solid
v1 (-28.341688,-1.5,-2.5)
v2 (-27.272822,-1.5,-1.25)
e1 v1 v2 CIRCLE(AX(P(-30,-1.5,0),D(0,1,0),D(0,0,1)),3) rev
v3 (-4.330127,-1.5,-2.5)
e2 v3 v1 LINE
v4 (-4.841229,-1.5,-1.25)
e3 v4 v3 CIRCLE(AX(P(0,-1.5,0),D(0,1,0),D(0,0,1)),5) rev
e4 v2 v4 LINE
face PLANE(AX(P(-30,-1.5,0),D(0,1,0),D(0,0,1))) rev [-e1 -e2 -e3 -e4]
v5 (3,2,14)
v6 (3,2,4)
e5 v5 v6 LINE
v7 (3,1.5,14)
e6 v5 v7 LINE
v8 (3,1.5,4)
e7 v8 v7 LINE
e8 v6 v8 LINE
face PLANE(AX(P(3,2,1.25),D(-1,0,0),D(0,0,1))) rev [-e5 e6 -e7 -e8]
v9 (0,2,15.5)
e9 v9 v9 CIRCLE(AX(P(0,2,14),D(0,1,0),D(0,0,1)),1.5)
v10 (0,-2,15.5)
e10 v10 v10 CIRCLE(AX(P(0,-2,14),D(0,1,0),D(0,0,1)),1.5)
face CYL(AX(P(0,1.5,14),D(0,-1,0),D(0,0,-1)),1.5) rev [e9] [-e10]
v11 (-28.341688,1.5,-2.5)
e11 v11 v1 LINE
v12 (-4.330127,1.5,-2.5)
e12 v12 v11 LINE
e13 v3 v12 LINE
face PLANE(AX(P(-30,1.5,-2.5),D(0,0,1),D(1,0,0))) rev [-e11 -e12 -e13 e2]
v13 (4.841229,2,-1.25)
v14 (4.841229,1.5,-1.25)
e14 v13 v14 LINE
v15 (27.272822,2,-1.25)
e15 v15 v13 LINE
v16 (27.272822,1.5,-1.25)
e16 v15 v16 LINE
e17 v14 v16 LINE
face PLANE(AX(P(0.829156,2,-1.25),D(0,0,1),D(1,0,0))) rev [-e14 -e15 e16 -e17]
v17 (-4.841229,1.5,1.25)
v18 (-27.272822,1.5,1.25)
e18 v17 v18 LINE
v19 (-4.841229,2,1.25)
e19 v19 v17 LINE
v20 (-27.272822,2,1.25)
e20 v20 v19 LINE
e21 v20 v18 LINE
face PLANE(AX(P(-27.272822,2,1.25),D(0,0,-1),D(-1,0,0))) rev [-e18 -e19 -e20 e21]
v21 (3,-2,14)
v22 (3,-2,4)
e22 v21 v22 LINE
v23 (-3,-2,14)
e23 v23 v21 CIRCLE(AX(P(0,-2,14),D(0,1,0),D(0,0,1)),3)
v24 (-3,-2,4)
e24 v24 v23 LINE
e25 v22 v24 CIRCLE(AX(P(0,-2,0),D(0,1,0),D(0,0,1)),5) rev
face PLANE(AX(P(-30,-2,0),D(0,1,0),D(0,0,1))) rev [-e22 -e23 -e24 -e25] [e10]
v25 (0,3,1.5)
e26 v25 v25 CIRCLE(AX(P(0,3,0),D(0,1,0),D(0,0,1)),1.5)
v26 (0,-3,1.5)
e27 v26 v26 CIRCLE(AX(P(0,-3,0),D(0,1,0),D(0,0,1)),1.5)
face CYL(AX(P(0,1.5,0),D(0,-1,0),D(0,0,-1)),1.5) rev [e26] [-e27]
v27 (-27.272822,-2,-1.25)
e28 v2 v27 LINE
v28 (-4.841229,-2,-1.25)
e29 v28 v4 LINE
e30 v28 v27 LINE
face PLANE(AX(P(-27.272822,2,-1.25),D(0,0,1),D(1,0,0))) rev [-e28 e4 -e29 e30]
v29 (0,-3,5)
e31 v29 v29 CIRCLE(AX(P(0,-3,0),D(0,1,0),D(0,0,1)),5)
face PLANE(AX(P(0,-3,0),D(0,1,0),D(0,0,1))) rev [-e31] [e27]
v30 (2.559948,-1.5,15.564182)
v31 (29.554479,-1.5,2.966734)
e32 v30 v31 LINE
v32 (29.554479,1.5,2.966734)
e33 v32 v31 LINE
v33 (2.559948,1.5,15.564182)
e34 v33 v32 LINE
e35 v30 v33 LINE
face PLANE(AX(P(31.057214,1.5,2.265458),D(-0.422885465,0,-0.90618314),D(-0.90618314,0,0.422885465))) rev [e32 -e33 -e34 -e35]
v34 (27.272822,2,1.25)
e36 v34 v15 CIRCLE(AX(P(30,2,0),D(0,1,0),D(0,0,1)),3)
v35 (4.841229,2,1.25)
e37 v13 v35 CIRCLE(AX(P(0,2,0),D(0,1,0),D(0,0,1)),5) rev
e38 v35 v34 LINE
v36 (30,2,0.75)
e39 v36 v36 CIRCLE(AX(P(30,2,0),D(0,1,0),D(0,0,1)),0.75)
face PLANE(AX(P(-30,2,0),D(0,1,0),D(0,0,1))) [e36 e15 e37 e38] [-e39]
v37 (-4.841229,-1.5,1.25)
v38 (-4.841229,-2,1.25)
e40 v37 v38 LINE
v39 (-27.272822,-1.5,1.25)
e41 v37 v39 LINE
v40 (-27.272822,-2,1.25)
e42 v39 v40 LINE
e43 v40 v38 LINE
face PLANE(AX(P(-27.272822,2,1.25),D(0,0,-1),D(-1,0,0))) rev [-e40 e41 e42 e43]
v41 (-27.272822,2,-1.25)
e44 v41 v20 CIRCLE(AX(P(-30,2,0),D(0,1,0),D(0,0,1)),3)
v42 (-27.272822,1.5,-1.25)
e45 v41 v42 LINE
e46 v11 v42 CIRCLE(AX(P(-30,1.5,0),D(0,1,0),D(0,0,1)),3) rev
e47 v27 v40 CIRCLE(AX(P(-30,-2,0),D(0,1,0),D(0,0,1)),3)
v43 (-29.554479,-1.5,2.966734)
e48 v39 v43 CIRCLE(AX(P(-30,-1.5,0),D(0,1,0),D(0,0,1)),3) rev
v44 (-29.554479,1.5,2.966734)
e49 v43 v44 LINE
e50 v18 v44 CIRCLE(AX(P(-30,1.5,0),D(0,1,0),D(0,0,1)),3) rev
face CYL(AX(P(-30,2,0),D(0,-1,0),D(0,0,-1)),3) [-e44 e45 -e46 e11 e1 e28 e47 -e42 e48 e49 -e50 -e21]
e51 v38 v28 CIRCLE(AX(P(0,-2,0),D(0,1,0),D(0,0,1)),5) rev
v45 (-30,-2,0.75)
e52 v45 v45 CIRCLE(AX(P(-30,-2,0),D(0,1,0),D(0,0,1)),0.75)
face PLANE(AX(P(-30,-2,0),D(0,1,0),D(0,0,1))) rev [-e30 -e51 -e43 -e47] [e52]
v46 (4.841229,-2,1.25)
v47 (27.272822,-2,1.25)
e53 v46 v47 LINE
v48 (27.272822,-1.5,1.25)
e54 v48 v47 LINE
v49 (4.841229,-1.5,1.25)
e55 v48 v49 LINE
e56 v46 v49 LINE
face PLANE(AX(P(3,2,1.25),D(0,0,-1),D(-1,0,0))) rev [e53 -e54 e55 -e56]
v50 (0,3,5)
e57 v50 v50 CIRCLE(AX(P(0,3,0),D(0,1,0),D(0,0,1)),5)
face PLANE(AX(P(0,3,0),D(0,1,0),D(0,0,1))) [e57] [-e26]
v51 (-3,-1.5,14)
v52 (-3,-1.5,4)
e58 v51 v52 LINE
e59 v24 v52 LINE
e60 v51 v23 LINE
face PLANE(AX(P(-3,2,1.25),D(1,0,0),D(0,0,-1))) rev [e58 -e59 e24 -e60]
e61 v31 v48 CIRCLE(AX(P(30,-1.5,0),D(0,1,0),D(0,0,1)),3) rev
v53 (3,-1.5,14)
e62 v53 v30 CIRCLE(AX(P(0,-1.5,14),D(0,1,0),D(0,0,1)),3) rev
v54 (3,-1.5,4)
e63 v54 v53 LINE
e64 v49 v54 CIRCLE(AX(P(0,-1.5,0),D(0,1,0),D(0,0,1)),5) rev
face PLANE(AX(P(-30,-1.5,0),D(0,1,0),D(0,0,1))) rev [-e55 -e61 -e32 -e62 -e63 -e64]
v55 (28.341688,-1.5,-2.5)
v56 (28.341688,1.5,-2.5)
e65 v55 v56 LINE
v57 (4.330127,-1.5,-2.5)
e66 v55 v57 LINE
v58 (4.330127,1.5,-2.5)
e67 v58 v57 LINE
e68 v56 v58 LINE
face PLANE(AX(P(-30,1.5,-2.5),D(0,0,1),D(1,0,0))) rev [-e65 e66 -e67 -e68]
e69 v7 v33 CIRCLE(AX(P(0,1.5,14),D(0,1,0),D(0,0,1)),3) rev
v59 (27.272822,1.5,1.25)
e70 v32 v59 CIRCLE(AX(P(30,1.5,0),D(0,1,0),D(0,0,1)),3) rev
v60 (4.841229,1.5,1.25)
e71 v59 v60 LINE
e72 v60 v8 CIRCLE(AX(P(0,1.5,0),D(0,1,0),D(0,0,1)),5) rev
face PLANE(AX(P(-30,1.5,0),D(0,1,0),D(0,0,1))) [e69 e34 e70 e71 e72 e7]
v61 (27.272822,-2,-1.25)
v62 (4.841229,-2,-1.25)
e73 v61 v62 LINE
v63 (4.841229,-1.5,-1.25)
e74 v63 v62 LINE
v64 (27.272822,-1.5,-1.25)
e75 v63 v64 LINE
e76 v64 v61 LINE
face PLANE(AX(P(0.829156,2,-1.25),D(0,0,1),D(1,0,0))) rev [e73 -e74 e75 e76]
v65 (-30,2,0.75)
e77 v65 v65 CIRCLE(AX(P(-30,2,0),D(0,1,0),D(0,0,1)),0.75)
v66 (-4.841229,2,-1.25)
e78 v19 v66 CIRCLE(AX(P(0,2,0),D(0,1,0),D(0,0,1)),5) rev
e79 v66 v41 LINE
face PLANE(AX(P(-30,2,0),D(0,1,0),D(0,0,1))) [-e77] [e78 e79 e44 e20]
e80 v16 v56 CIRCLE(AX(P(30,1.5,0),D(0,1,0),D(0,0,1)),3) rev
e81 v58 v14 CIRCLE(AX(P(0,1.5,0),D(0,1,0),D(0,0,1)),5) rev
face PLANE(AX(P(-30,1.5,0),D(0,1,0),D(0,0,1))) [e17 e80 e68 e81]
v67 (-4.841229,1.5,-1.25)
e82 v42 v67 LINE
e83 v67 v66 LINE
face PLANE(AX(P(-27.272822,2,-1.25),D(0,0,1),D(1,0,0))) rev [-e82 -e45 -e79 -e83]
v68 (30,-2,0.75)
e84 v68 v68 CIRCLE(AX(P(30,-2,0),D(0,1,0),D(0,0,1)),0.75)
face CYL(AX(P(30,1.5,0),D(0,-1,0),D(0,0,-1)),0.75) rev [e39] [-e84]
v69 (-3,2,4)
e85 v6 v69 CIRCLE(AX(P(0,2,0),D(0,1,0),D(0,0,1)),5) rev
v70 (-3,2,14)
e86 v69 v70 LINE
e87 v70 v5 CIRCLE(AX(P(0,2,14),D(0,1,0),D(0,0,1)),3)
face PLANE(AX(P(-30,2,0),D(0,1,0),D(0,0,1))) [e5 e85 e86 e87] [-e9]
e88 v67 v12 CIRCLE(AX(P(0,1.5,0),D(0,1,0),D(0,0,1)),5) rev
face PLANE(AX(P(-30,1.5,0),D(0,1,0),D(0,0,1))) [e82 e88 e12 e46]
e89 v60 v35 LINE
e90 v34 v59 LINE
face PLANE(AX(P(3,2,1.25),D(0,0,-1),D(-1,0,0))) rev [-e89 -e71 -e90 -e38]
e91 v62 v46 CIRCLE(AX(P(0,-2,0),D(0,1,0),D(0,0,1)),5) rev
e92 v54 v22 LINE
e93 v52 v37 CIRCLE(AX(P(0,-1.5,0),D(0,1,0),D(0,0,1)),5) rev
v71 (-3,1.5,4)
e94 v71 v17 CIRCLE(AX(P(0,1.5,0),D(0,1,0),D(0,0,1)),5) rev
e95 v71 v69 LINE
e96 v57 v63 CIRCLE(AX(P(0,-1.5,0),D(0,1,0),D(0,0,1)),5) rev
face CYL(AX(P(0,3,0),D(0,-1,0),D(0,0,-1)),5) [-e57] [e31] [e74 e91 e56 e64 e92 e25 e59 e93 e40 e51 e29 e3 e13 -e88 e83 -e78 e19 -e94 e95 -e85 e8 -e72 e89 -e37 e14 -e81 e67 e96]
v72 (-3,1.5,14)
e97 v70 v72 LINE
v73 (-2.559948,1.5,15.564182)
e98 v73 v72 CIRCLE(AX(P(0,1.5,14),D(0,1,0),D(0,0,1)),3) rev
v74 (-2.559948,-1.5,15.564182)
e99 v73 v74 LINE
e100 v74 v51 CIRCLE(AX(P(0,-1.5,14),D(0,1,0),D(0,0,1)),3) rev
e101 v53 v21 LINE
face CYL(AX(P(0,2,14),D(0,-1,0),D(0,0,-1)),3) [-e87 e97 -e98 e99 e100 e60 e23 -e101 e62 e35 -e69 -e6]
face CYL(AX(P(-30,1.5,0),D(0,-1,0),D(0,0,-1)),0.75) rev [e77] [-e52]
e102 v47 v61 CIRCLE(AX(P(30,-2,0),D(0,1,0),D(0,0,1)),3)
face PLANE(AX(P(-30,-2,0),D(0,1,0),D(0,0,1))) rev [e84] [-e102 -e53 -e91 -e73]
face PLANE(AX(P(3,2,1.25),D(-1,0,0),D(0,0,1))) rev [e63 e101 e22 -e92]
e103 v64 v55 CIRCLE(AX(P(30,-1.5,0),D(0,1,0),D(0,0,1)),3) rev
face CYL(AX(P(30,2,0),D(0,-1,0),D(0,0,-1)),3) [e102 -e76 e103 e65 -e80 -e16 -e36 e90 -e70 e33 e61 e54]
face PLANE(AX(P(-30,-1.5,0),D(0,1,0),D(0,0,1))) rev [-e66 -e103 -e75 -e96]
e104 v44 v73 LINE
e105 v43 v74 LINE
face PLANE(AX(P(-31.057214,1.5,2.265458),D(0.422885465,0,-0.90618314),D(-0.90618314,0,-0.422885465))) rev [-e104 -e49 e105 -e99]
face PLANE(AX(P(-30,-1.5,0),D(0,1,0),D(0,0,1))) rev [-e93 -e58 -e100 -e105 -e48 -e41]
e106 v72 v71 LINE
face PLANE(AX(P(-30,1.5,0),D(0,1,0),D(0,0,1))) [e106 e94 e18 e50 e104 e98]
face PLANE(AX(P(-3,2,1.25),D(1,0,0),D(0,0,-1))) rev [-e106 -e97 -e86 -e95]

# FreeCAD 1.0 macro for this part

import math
import FreeCAD as App
import Part
import Sketcher

V = App.Vector

doc = App.newDocument("Part")
body = doc.addObject("PartDesign::Body", "Body")

sketch1 = body.newObject("Sketcher::SketchObject", "Sketch")
sketch1.AttachmentSupport = (doc.getObject("XZ_Plane"), [""])
sketch1.MapMode = "FlatFace"
sketch1.addGeometry(Part.LineSegment(V(30, -2.5, 0), V(-30, -2.5, 0)), False)
sketch1.addGeometry(Part.ArcOfCircle(Part.Circle(V(-30, 0, 0), V(0, 0, 1), 2.5), math.radians(115), math.radians(270)), False)
sketch1.addGeometry(Part.LineSegment(V(-31.1, 2.3, 0), V(-1.1, 16.3, 0)), False)
sketch1.addGeometry(Part.ArcOfCircle(Part.Circle(V(0, 14, 0), V(0, 0, 1), 2.5), math.radians(65), math.radians(115)), False)
sketch1.addGeometry(Part.LineSegment(V(1.1, 16.3, 0), V(31.1, 2.3, 0)), False)
sketch1.addGeometry(Part.ArcOfCircle(Part.Circle(V(30, 0, 0), V(0, 0, 1), 2.5), math.radians(-90), math.radians(65)), False)
sketch1.addGeometry(Part.Circle(V(0, 14, 0), V(0, 0, 1), 1.5), False)
sketch1.addGeometry(Part.Circle(V(30, 0, 0), V(0, 0, 1), 0.8), False)
sketch1.addGeometry(Part.Circle(V(0, 0, 0), V(0, 0, 1), 1.5), False)
sketch1.addGeometry(Part.Circle(V(-30, 0, 0), V(0, 0, 1), 0.8), False)
sketch1.addConstraint(Sketcher.Constraint("Tangent", 0, 2, 1, 2))
sketch1.addConstraint(Sketcher.Constraint("Tangent", 1, 1, 2, 1))
sketch1.addConstraint(Sketcher.Constraint("Tangent", 2, 2, 3, 2))
sketch1.addConstraint(Sketcher.Constraint("Tangent", 3, 1, 4, 1))
sketch1.addConstraint(Sketcher.Constraint("Tangent", 4, 2, 5, 2))
sketch1.addConstraint(Sketcher.Constraint("Tangent", 5, 1, 0, 1))
sketch1.addConstraint(Sketcher.Constraint("Horizontal", 0))
sketch1.addConstraint(Sketcher.Constraint("Coincident", 8, 3, -1, 1))
sketch1.addConstraint(Sketcher.Constraint("Coincident", 6, 3, 3, 3))
sketch1.addConstraint(Sketcher.Constraint("Coincident", 7, 3, 5, 3))
sketch1.addConstraint(Sketcher.Constraint("Coincident", 9, 3, 1, 3))
sketch1.addConstraint(Sketcher.Constraint("Equal", 1, 3))
sketch1.addConstraint(Sketcher.Constraint("Equal", 3, 5))
sketch1.addConstraint(Sketcher.Constraint("Equal", 6, 8))
sketch1.addConstraint(Sketcher.Constraint("Equal", 7, 9))
sketch1.addConstraint(Sketcher.Constraint("Symmetric", 1, 3, 5, 3, -1, 1))
sketch1.addConstraint(Sketcher.Constraint("PointOnObject", 3, 3, -2))
sketch1.addConstraint(Sketcher.Constraint("Diameter", 6, 3.0))
sketch1.addConstraint(Sketcher.Constraint("Diameter", 7, 1.5))
sketch1.addConstraint(Sketcher.Constraint("Radius", 1, 2.5))
sketch1.addConstraint(Sketcher.Constraint("DistanceX", 0, 2, 0, 1, 60.0))
sketch1.addConstraint(Sketcher.Constraint("DistanceY", -1, 1, 3, 3, 14.0))
pad1 = body.newObject("PartDesign::Pad", "Pad")
pad1.Profile = sketch1
pad1.Length = 3
pad1.Midplane = True

sketch2 = body.newObject("Sketcher::SketchObject", "Sketch001")
sketch2.AttachmentSupport = (doc.getObject("XZ_Plane"), [""])
sketch2.MapMode = "FlatFace"
sketch2.addGeometry(Part.LineSegment(V(-0.8, -1.2, 0), V(-27.3, -1.2, 0)), False)
sketch2.addGeometry(Part.ArcOfCircle(Part.Circle(V(-30, 0, 0), V(0, 0, 1), 3), math.radians(25), math.radians(335)), False)
sketch2.addGeometry(Part.LineSegment(V(-27.3, 1.2, 0), V(-3, 1.2, 0)), False)
sketch2.addGeometry(Part.LineSegment(V(-3, 1.2, 0), V(-3, 14, 0)), False)
sketch2.addGeometry(Part.ArcOfCircle(Part.Circle(V(0, 14, 0), V(0, 0, 1), 3), math.radians(0), math.radians(180)), False)
sketch2.addGeometry(Part.LineSegment(V(3, 14, 0), V(3, 1.2, 0)), False)
sketch2.addGeometry(Part.LineSegment(V(3, 1.2, 0), V(27.3, 1.2, 0)), False)
sketch2.addGeometry(Part.ArcOfCircle(Part.Circle(V(30, 0, 0), V(0, 0, 1), 3), math.radians(-155), math.radians(155)), False)
sketch2.addGeometry(Part.LineSegment(V(27.3, -1.2, 0), V(0.8, -1.2, 0)), False)
sketch2.addGeometry(Part.ArcOfCircle(Part.Circle(V(0, 0, 0), V(0, 0, 1), 1.5), math.radians(-56), math.radians(236)), False)
sketch2.addGeometry(Part.Circle(V(0, 14, 0), V(0, 0, 1), 1.5), False)
sketch2.addGeometry(Part.Circle(V(30, 0, 0), V(0, 0, 1), 0.8), False)
sketch2.addGeometry(Part.Circle(V(-30, 0, 0), V(0, 0, 1), 0.8), False)
sketch2.addConstraint(Sketcher.Constraint("Coincident", 0, 2, 1, 2))
sketch2.addConstraint(Sketcher.Constraint("Coincident", 1, 1, 2, 1))
sketch2.addConstraint(Sketcher.Constraint("Coincident", 2, 2, 3, 1))
sketch2.addConstraint(Sketcher.Constraint("Tangent", 3, 2, 4, 2))
sketch2.addConstraint(Sketcher.Constraint("Tangent", 4, 1, 5, 1))
sketch2.addConstraint(Sketcher.Constraint("Coincident", 5, 2, 6, 1))
sketch2.addConstraint(Sketcher.Constraint("Coincident", 6, 2, 7, 2))
sketch2.addConstraint(Sketcher.Constraint("Coincident", 7, 1, 8, 1))
sketch2.addConstraint(Sketcher.Constraint("Coincident", 8, 2, 9, 1))
sketch2.addConstraint(Sketcher.Constraint("Coincident", 9, 2, 0, 1))
sketch2.addConstraint(Sketcher.Constraint("Horizontal", 0))
sketch2.addConstraint(Sketcher.Constraint("Horizontal", 2))
sketch2.addConstraint(Sketcher.Constraint("Vertical", 3))
sketch2.addConstraint(Sketcher.Constraint("Vertical", 5))
sketch2.addConstraint(Sketcher.Constraint("Horizontal", 6))
sketch2.addConstraint(Sketcher.Constraint("Horizontal", 8))
sketch2.addConstraint(Sketcher.Constraint("Coincident", 9, 3, -1, 1))
sketch2.addConstraint(Sketcher.Constraint("Coincident", 10, 3, 4, 3))
sketch2.addConstraint(Sketcher.Constraint("Coincident", 11, 3, 7, 3))
sketch2.addConstraint(Sketcher.Constraint("Coincident", 12, 3, 1, 3))
sketch2.addConstraint(Sketcher.Constraint("Equal", 1, 4))
sketch2.addConstraint(Sketcher.Constraint("Equal", 4, 7))
sketch2.addConstraint(Sketcher.Constraint("Equal", 9, 10))
sketch2.addConstraint(Sketcher.Constraint("Equal", 11, 12))
sketch2.addConstraint(Sketcher.Constraint("Symmetric", 1, 3, 7, 3, -1, 1))
sketch2.addConstraint(Sketcher.Constraint("Symmetric", 2, 2, 5, 2, -2))
sketch2.addConstraint(Sketcher.Constraint("Symmetric", 0, 2, 7, 1, -2))
sketch2.addConstraint(Sketcher.Constraint("Vertical", 0, 2, 1, 1))
sketch2.addConstraint(Sketcher.Constraint("Diameter", 10, 3.0))
sketch2.addConstraint(Sketcher.Constraint("Radius", 1, 3.0))
sketch2.addConstraint(Sketcher.Constraint("Diameter", 11, 1.5))
sketch2.addConstraint(Sketcher.Constraint("DistanceX", 1, 3, -1, 1, 30.0))
sketch2.addConstraint(Sketcher.Constraint("DistanceY", -1, 1, 4, 3, 14.0))
sketch2.addConstraint(Sketcher.Constraint("DistanceY", 3, 1, 3, 2, 12.75))
pad2 = body.newObject("PartDesign::Pad", "Pad001")
pad2.Profile = sketch2
pad2.Length = 4
pad2.Midplane = True

sketch3 = body.newObject("Sketcher::SketchObject", "Sketch002")
sketch3.AttachmentSupport = (doc.getObject("XZ_Plane"), [""])
sketch3.MapMode = "FlatFace"
sketch3.addGeometry(Part.Circle(V(0, 0, 0), V(0, 0, 1), 5), False)
sketch3.addGeometry(Part.Circle(V(0, 0, 0), V(0, 0, 1), 1.5), False)
sketch3.addConstraint(Sketcher.Constraint("Coincident", 0, 3, -1, 1))
sketch3.addConstraint(Sketcher.Constraint("Coincident", 1, 3, -1, 1))
sketch3.addConstraint(Sketcher.Constraint("Diameter", 0, 10.0))
sketch3.addConstraint(Sketcher.Constraint("Diameter", 1, 3.0))
pad3 = body.newObject("PartDesign::Pad", "Pad002")
pad3.Profile = sketch3
pad3.Length = 6
pad3.Midplane = True

doc.recompute()
